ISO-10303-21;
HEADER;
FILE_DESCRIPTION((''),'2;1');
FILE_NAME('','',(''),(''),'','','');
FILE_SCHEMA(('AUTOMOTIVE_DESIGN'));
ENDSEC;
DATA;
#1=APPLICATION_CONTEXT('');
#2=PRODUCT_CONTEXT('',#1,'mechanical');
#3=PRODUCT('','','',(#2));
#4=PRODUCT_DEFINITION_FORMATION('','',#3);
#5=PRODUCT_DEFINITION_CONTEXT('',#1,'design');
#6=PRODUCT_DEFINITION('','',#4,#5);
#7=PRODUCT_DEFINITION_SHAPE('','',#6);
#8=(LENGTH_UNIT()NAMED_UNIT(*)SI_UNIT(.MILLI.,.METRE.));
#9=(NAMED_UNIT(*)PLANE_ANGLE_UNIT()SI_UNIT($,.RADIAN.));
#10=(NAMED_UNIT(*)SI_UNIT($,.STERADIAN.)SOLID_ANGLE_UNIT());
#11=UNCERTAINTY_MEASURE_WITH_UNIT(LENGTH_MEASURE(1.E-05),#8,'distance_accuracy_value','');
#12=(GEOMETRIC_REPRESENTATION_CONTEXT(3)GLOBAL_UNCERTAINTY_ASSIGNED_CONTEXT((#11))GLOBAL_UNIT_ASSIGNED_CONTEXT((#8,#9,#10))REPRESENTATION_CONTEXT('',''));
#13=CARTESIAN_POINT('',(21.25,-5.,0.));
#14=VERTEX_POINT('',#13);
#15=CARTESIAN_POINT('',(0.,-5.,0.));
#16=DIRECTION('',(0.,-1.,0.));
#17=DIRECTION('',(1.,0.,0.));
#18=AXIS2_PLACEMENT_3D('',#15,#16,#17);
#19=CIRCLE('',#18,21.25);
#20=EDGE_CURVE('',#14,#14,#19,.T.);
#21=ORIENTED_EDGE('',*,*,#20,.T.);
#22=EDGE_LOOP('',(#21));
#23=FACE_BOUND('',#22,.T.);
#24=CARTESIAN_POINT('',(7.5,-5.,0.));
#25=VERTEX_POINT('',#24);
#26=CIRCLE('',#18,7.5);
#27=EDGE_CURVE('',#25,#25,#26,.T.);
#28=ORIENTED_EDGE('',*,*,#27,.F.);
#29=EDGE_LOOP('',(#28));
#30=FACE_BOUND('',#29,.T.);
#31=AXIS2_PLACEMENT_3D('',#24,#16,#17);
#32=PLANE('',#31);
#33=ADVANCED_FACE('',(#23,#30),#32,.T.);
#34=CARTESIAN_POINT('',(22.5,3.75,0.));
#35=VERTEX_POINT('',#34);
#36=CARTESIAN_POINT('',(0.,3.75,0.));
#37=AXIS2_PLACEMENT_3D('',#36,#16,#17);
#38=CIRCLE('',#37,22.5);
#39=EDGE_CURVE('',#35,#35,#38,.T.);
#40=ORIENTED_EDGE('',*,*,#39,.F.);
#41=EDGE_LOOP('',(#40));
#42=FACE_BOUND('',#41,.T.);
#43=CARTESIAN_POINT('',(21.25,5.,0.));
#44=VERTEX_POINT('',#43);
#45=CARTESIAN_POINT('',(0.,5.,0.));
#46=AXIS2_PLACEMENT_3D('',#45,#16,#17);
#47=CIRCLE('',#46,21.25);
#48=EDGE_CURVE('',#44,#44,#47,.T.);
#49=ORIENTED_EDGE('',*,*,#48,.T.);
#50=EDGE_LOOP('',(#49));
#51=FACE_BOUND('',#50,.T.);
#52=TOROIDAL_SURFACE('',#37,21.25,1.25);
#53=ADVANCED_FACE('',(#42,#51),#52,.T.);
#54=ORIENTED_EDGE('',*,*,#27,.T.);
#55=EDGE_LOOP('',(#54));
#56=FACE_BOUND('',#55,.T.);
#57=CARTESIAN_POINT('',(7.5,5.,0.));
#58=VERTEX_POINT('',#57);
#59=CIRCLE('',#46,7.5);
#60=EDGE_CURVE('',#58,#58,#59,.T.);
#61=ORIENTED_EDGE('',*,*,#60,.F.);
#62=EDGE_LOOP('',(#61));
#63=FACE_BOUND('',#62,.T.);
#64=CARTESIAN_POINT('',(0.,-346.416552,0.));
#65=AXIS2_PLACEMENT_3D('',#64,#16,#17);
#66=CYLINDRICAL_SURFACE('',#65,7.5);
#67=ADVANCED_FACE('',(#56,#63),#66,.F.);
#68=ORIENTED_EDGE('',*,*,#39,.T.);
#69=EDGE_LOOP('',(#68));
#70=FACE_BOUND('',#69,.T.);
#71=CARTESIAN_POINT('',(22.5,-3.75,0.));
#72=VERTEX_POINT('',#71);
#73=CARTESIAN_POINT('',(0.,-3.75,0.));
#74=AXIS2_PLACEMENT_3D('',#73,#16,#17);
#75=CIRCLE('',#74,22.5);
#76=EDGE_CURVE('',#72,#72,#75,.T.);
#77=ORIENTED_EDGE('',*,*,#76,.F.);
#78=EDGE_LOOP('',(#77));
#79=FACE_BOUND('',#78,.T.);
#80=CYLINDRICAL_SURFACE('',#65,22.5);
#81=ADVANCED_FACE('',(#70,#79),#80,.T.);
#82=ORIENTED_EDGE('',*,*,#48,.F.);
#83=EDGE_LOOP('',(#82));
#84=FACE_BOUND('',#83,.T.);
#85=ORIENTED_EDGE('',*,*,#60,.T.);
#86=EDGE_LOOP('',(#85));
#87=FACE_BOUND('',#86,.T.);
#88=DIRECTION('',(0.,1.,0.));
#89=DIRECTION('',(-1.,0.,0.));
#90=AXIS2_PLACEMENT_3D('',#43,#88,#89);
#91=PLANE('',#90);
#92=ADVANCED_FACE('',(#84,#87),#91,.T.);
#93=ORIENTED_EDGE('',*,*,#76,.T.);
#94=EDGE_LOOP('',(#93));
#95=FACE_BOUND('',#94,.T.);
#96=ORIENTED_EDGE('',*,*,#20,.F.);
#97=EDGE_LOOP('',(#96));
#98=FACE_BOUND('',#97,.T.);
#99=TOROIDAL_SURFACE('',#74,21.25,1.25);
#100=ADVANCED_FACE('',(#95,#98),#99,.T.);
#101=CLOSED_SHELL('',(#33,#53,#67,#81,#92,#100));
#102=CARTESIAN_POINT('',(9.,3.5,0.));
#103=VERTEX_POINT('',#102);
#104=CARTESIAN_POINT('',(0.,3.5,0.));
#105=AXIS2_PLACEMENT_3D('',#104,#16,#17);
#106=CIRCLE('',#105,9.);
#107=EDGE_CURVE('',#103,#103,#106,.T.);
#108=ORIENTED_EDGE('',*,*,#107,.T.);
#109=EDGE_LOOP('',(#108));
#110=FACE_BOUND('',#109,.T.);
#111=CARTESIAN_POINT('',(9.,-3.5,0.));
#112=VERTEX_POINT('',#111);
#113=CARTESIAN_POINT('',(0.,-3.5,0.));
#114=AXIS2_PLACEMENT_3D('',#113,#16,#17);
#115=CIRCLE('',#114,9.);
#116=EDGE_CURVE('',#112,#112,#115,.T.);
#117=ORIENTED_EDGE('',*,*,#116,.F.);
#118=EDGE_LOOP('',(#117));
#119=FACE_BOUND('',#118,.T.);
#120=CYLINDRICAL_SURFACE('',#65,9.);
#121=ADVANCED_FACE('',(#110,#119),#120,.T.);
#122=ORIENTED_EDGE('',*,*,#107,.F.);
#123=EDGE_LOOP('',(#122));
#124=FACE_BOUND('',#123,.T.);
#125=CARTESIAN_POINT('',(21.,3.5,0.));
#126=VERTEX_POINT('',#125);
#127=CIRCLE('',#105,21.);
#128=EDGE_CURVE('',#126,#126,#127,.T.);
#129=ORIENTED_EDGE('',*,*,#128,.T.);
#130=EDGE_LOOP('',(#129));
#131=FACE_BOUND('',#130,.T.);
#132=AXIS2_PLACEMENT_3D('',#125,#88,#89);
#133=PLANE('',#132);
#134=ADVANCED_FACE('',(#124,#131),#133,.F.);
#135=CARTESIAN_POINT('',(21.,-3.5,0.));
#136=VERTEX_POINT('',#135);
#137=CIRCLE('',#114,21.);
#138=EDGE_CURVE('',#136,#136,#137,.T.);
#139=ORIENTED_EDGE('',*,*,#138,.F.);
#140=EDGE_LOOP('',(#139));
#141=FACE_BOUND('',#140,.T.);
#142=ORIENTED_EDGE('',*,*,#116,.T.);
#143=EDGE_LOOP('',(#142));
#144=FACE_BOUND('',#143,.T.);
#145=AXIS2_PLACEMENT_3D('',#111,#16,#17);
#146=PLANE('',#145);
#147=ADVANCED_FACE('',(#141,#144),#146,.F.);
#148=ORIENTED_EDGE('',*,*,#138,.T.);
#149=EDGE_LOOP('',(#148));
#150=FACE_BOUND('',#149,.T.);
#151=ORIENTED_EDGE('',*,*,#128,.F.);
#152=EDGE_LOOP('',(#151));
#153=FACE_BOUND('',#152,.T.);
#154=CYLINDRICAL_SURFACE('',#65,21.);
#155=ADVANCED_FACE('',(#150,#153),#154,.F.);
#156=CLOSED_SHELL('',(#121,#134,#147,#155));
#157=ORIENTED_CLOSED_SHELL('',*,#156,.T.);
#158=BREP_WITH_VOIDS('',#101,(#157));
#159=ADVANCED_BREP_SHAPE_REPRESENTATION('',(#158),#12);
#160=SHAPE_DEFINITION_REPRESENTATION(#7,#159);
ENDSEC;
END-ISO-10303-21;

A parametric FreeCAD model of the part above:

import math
import FreeCAD as App
import Part
import Sketcher
Q = App.Units.Quantity

doc = App.newDocument("Part")
body = doc.addObject("PartDesign::Body", "Body")

# Sketch on XY plane
sketch1 = body.newObject("Sketcher::SketchObject", "Sketch")
sketch1.AttachmentSupport = (doc.getObject("XY_Plane"), [""])
sketch1.MapMode = "FlatFace"
sketch1.addGeometry(Part.LineSegment(App.Vector(7.5, 5, 0), App.Vector(7.5, -5, 0)), False)
sketch1.addGeometry(Part.LineSegment(App.Vector(7.5, -5, 0), App.Vector(21.2, -5, 0)), False)
sketch1.addGeometry(Part.ArcOfCircle(Part.Circle(App.Vector(21.2, -3.7, 0), App.Vector(0, 0, 1), 1.3), math.radians(-90), math.radians(0)), False)
sketch1.addGeometry(Part.LineSegment(App.Vector(22.5, -3.8, 0), App.Vector(22.5, 3.8, 0)), False)
sketch1.addGeometry(Part.ArcOfCircle(Part.Circle(App.Vector(21.2, 3.7, 0), App.Vector(0, 0, 1), 1.3), math.radians(0), math.radians(90)), False)
sketch1.addGeometry(Part.LineSegment(App.Vector(21.2, 5, 0), App.Vector(7.5, 5, 0)), False)
sketch1.addGeometry(Part.LineSegment(App.Vector(21, -3.5, 0), App.Vector(9, -3.5, 0)), False)
sketch1.addGeometry(Part.LineSegment(App.Vector(9, -3.5, 0), App.Vector(9, 3.5, 0)), False)
sketch1.addGeometry(Part.LineSegment(App.Vector(9, 3.5, 0), App.Vector(21, 3.5, 0)), False)
sketch1.addGeometry(Part.LineSegment(App.Vector(21, 3.5, 0), App.Vector(21, -3.5, 0)), False)
sketch1.addConstraint(Sketcher.Constraint("Coincident", 0, 2, 1, 1))
sketch1.addConstraint(Sketcher.Constraint("Tangent", 1, 2, 2, 1))
sketch1.addConstraint(Sketcher.Constraint("Tangent", 2, 2, 3, 1))
sketch1.addConstraint(Sketcher.Constraint("Tangent", 3, 2, 4, 1))
sketch1.addConstraint(Sketcher.Constraint("Tangent", 4, 2, 5, 1))
sketch1.addConstraint(Sketcher.Constraint("Coincident", 5, 2, 0, 1))
sketch1.addConstraint(Sketcher.Constraint("Coincident", 6, 2, 7, 1))
sketch1.addConstraint(Sketcher.Constraint("Coincident", 7, 2, 8, 1))
sketch1.addConstraint(Sketcher.Constraint("Coincident", 8, 2, 9, 1))
sketch1.addConstraint(Sketcher.Constraint("Coincident", 9, 2, 6, 1))
sketch1.addConstraint(Sketcher.Constraint("Vertical", 0))
sketch1.addConstraint(Sketcher.Constraint("Horizontal", 1))
sketch1.addConstraint(Sketcher.Constraint("Vertical", 3))
sketch1.addConstraint(Sketcher.Constraint("Horizontal", 5))
sketch1.addConstraint(Sketcher.Constraint("Horizontal", 6))
sketch1.addConstraint(Sketcher.Constraint("Vertical", 7))
sketch1.addConstraint(Sketcher.Constraint("Horizontal", 8))
sketch1.addConstraint(Sketcher.Constraint("Vertical", 9))
sketch1.addConstraint(Sketcher.Constraint("Equal", 2, 4))
sketch1.addConstraint(Sketcher.Constraint("DistanceX", 6, 2, 6, 1, Q("12 mm")))
sketch1.addConstraint(Sketcher.Constraint("DistanceY", 0, 2, 0, 1, Q("10 mm")))
sketch1.addConstraint(Sketcher.Constraint("DistanceY", 7, 1, 7, 2, Q("7 mm")))
sketch1.addConstraint(Sketcher.Constraint("Radius", 2, Q("1.25 mm")))
sketch1.addConstraint(Sketcher.Constraint("DistanceY", 0, 2, -1, 1, Q("5 mm")))
sketch1.addConstraint(Sketcher.Constraint("DistanceX", -1, 1, 6, 2, Q("9 mm")))
sketch1.addConstraint(Sketcher.Constraint("DistanceX", 0, 2, 2, 2, Q("15 mm")))
sketch1.addConstraint(Sketcher.Constraint("DistanceX", -1, 1, 0, 2, Q("7.5 mm")))
sketch1.addConstraint(Sketcher.Constraint("DistanceY", 6, 2, -1, 1, Q("3.5 mm")))
revolution = body.newObject("PartDesign::Revolution", "Revolution")
revolution.Profile = sketch1
revolution.ReferenceAxis = (sketch1, ["V_Axis"])
revolution.Angle = 360

doc.recompute()
